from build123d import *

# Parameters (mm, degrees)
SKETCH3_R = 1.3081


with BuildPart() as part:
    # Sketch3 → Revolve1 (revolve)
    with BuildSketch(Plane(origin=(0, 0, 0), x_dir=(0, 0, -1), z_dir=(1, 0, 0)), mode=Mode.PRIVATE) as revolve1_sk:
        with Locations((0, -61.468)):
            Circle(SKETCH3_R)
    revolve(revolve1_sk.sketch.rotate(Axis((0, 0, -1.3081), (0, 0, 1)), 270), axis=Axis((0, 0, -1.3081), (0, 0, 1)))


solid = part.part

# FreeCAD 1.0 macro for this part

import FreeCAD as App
import Part
import Sketcher

V = App.Vector
Q = App.Units.Quantity

doc = App.newDocument("Part")
body = doc.addObject("PartDesign::Body", "Body")

sketch1 = body.newObject("Sketcher::SketchObject", "Sketch")
sketch1.AttachmentSupport = (doc.getObject("YZ_Plane"), [""])
sketch1.MapMode = "FlatFace"
sketch1.addGeometry(Part.Circle(V(-61.5, 0, 0), V(0, 0, 1), 1.3), False)
sketch1.addConstraint([
    Sketcher.Constraint("PointOnObject", 0, 3, -1),
    Sketcher.Constraint("Diameter", 0, Q("0.103 in")),
    Sketcher.Constraint("DistanceX", 0, 3, -1, 1, Q("2.42 in")),
])
revolution = body.newObject("PartDesign::Revolution", "Revolution")
revolution.Profile = sketch1
revolution.ReferenceAxis = (sketch1, ["V_Axis"])
revolution.Angle = 360

doc.recompute()
